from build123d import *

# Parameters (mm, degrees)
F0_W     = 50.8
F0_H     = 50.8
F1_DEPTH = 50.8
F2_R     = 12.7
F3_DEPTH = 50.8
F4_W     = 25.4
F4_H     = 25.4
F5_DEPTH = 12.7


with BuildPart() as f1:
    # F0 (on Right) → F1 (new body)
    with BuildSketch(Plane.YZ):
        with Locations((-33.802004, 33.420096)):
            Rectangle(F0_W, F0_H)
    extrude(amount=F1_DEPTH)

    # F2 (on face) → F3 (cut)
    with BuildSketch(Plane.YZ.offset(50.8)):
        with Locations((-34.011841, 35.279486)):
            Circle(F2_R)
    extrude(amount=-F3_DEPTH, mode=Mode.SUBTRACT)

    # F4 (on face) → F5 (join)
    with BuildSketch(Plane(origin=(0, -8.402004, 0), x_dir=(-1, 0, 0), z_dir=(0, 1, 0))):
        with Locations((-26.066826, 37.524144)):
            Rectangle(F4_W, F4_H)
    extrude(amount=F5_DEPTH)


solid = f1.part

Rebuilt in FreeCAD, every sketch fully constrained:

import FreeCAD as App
import Part
import Sketcher
from FreeCAD import Vector
Q = App.Units.Quantity


def add_polygon(sketch, points):
    """Adds a closed chain of lines whose ends are joined by coincident constraints."""
    first, n = sketch.GeometryCount, len(points)
    for a, b in zip(points, points[1:] + points[:1]):
        sketch.addGeometry(Part.LineSegment(App.Vector(*a, 0), App.Vector(*b, 0)), False)
    for i in range(n):
        sketch.addConstraint(Sketcher.Constraint("Coincident", first + i, 2, first + (i + 1) % n, 1))

doc = App.newDocument("Part")
params = doc.addObject("Spreadsheet::Sheet", "Params")
for row, (alias, value) in enumerate([
    ("sketch1_width", "2 in"),
    ("pad1_length", "2 in"),
    ("sketch2_diameter", "1 in"),
    ("pocket1_length", "2 in"),
    ("sketch3_width", "1 in"),
    ("pad2_length", "0.5 in"),
], start=1):
    params.set(f"A{row}", alias)
    params.set(f"B{row}", "=" + value)
    params.setAlias(f"B{row}", alias)

body = doc.addObject("PartDesign::Body", "Body")

# Sketch on YZ plane
sketch1 = body.newObject("Sketcher::SketchObject", "Sketch")
sketch1.AttachmentSupport = (doc.getObject("YZ_Plane"), [""])
sketch1.MapMode = "FlatFace"
add_polygon(sketch1, [(-59, 59), (-59, 8), (-8, 8), (-8, 59)])  # lines 0-3
sketch1.addConstraint([
    Sketcher.Constraint("Vertical", 0),
    Sketcher.Constraint("Horizontal", 1),
    Sketcher.Constraint("Vertical", 2),
    Sketcher.Constraint("Horizontal", 3),
    Sketcher.Constraint("Equal", 3, 0),
    Sketcher.Constraint("DistanceX", 1, 1, 1, 2, Q("2 in")),
    Sketcher.Constraint("DistanceX", 0, 2, -1, 1, 59.202004),
    Sketcher.Constraint("DistanceY", -1, 1, 0, 2, 8.020096),
])
sketch1.setExpression("Constraints[9]", "Params.sketch1_width")
pad1 = body.newObject("PartDesign::Pad", "Pad")
pad1.Profile = sketch1
pad1.setExpression("Length", "Params.pad1_length")

# Sketch on YZ plane
sketch2 = body.newObject("Sketcher::SketchObject", "Sketch001")
sketch2.AttachmentSupport = (doc.getObject("YZ_Plane"), [""])
sketch2.MapMode = "FlatFace"
sketch2.AttachmentOffset = App.Placement(Vector(0, 0, 2 * 25.4), App.Rotation())
sketch2.addGeometry(Part.Circle(Vector(-34, 35, 0), Vector(0, 0, 1), 13), False)
sketch2.addConstraint([
    Sketcher.Constraint("Diameter", 0, Q("1 in")),
    Sketcher.Constraint("DistanceX", 0, 3, -1, 1, 34.011841),
    Sketcher.Constraint("DistanceY", -1, 1, 0, 3, 35.279486),
])
sketch2.setExpression("Constraints[0]", "Params.sketch2_diameter")
pocket1 = body.newObject("PartDesign::Pocket", "Pocket")
pocket1.Profile = sketch2
pocket1.setExpression("Length", "Params.pocket1_length")

# Sketch on XZ plane
sketch3 = body.newObject("Sketcher::SketchObject", "Sketch002")
sketch3.AttachmentSupport = (doc.getObject("XZ_Plane"), [""])
sketch3.MapMode = "FlatFace"
sketch3.AttachmentOffset = App.Placement(Vector(0, 0, 8.402004), App.Rotation())
add_polygon(sketch3, [(39, 50), (39, 25), (13, 25), (13, 50)])  # lines 0-3
sketch3.addConstraint([
    Sketcher.Constraint("Vertical", 0),
    Sketcher.Constraint("Horizontal", 1),
    Sketcher.Constraint("Vertical", 2),
    Sketcher.Constraint("Horizontal", 3),
    Sketcher.Constraint("Equal", 3, 0),
    Sketcher.Constraint("DistanceX", 1, 2, 1, 1, Q("1 in")),
    Sketcher.Constraint("DistanceX", -1, 1, 0, 2, 38.766826),
    Sketcher.Constraint("DistanceY", -1, 1, 0, 2, 24.824144),
])
sketch3.setExpression("Constraints[9]", "Params.sketch3_width")
pad2 = body.newObject("PartDesign::Pad", "Pad001")
pad2.Profile = sketch3
pad2.setExpression("Length", "Params.pad2_length")
pad2.Reversed = True

doc.recompute()
